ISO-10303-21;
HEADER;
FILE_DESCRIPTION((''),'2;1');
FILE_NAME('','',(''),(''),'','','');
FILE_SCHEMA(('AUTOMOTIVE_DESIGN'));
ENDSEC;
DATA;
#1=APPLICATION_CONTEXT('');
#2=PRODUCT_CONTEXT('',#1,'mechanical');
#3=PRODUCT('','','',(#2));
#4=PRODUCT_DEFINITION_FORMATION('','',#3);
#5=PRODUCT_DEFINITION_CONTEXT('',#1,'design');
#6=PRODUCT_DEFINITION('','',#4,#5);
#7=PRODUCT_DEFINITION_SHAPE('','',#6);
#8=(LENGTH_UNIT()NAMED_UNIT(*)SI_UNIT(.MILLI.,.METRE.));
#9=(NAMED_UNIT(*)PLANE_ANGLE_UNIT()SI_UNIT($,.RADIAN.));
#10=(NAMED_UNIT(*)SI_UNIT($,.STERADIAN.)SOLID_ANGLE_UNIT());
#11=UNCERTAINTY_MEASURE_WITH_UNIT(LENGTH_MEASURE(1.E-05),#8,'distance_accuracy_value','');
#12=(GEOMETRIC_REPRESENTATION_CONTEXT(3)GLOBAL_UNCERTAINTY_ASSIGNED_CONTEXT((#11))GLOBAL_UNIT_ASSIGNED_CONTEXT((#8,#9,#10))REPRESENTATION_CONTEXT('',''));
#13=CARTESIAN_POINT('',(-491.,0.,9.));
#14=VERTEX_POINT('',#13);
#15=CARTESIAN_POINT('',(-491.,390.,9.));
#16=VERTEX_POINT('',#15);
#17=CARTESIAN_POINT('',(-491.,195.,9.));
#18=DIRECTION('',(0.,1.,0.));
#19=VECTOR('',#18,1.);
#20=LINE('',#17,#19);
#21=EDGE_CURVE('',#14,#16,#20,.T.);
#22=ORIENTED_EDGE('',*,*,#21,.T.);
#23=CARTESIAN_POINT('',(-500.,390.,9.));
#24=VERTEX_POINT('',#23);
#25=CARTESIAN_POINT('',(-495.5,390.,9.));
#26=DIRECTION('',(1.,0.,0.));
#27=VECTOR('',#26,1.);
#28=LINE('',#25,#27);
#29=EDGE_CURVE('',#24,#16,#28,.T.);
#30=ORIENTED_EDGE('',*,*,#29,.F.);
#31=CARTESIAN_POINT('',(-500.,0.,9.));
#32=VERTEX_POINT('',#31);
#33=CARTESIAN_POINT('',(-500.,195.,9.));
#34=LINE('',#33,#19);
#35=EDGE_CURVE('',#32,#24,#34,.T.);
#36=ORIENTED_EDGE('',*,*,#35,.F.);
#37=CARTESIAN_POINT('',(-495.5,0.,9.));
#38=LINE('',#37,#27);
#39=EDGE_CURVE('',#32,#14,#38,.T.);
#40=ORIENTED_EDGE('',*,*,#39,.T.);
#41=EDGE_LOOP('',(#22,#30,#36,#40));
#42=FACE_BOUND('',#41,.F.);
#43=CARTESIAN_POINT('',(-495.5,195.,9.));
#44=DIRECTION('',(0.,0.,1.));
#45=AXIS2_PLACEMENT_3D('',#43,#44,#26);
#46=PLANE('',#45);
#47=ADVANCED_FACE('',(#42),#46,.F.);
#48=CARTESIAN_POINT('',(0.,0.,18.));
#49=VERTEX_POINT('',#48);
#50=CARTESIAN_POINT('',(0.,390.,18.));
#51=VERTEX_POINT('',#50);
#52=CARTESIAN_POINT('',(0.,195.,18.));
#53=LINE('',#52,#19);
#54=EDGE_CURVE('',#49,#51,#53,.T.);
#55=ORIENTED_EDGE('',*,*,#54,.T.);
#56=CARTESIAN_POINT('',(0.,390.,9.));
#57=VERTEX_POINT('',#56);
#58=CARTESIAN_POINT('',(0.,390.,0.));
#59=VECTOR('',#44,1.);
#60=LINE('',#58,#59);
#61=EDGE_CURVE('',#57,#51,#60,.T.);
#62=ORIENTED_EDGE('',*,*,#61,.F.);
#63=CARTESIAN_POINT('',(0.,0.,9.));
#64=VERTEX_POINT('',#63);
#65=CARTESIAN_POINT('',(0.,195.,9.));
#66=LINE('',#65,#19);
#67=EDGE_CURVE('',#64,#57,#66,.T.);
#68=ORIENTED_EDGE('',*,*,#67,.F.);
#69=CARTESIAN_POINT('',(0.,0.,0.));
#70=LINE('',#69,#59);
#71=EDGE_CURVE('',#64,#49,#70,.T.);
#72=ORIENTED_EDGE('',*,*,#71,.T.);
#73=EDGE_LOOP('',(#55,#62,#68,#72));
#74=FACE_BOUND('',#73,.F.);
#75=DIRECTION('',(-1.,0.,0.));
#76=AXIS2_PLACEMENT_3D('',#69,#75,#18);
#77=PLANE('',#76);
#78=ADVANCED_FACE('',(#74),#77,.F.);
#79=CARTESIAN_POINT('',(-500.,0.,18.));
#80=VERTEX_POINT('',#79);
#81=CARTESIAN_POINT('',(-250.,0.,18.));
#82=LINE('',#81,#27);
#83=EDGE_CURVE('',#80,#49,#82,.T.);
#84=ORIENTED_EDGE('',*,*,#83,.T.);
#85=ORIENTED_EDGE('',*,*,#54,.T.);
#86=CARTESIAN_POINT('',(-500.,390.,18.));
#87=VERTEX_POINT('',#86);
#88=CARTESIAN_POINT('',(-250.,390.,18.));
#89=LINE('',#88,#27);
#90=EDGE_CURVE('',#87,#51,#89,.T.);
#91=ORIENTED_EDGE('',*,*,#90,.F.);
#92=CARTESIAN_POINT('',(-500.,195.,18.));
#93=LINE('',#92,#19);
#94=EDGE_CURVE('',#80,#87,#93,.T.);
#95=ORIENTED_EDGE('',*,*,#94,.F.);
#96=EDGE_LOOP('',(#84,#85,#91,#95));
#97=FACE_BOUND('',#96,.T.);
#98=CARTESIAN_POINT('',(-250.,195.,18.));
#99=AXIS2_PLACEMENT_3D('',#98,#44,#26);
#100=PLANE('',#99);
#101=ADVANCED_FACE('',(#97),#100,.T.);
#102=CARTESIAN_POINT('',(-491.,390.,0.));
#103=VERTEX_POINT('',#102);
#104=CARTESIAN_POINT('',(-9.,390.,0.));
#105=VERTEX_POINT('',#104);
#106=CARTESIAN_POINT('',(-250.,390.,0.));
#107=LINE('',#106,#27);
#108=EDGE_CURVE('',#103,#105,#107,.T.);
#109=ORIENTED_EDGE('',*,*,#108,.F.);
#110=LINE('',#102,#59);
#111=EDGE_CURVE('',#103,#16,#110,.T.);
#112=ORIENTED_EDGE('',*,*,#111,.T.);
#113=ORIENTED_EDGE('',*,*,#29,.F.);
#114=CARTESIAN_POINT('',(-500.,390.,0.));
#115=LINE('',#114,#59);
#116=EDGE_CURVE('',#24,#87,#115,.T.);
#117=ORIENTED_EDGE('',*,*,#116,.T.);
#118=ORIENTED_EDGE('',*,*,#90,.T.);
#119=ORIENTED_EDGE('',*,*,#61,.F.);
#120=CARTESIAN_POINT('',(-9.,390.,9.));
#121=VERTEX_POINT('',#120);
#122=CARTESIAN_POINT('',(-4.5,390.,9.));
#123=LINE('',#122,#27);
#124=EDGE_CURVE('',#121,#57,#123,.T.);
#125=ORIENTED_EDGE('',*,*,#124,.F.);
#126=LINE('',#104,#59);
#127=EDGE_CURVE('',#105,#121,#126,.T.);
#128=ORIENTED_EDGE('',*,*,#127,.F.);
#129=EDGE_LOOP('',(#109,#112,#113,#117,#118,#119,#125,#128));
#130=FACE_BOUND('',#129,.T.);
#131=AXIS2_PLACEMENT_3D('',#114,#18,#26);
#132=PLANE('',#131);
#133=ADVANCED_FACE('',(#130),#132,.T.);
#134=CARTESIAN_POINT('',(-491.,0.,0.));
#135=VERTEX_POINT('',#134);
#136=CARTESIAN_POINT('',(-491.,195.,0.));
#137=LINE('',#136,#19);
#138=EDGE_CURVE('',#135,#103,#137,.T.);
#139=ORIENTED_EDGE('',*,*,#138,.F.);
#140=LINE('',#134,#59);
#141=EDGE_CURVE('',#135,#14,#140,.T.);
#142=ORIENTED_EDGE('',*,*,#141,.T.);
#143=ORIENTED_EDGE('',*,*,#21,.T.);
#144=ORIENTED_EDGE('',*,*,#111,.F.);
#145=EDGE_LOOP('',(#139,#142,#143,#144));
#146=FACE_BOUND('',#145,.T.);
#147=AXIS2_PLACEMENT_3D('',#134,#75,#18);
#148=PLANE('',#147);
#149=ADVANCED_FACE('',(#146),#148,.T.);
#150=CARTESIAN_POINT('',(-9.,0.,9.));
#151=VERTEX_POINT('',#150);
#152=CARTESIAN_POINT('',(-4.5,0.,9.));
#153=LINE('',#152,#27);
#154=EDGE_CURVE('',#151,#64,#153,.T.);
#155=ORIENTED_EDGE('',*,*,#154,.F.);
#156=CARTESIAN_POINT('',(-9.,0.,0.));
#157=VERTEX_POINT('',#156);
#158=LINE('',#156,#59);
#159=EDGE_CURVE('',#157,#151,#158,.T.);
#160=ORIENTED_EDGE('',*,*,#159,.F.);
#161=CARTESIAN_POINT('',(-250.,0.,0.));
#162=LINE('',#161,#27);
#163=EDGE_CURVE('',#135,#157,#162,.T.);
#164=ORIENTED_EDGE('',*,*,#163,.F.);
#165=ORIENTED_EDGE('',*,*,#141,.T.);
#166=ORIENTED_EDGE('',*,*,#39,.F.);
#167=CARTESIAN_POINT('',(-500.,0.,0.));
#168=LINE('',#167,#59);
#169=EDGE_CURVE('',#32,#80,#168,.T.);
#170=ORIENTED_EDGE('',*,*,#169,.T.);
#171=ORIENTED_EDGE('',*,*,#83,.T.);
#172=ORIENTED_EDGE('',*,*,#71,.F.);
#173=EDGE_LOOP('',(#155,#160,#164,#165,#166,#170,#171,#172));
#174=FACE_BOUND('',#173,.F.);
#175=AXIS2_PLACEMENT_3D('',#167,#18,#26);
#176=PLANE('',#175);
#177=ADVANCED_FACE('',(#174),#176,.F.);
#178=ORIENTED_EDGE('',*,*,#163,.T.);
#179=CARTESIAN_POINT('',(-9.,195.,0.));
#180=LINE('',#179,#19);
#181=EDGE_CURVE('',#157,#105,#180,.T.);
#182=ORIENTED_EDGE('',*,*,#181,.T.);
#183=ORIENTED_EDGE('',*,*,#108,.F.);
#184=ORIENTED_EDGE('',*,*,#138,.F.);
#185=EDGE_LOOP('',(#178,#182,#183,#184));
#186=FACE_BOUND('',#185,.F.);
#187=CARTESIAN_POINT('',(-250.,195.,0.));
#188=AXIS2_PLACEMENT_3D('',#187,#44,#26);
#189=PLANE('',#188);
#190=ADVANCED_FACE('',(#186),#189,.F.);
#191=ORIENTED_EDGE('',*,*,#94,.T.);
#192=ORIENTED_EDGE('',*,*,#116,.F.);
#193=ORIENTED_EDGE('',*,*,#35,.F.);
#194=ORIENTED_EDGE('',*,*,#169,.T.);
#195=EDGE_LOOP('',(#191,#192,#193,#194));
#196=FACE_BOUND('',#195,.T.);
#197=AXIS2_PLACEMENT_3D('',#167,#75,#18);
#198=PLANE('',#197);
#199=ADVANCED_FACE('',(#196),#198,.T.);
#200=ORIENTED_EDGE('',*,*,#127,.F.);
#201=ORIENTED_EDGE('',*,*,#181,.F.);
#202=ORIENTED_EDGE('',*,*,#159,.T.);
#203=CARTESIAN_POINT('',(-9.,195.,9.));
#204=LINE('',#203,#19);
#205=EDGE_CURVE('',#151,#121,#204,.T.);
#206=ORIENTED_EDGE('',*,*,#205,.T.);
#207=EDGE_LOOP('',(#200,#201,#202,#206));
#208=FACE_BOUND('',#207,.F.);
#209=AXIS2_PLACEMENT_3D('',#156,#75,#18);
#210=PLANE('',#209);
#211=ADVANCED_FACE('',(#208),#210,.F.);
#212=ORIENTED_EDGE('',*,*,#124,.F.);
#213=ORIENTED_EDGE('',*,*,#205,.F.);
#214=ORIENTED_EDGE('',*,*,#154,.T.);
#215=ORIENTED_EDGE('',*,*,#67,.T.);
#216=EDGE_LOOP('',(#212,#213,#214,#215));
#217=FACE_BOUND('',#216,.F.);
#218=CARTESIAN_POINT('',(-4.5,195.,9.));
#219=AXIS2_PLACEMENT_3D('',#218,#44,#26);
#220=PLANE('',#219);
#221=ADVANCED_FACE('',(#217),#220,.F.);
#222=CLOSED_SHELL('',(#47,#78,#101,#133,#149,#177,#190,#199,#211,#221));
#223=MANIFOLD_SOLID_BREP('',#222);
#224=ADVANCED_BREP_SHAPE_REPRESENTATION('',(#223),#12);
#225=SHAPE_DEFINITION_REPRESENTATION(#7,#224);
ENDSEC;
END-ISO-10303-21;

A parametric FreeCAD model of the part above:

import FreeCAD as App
import Part
import Sketcher
Q = App.Units.Quantity


def add_polygon(sketch, points):
    """Adds a closed chain of lines whose ends are joined by coincident constraints."""
    first, n = sketch.GeometryCount, len(points)
    for a, b in zip(points, points[1:] + points[:1]):
        sketch.addGeometry(Part.LineSegment(App.Vector(*a, 0), App.Vector(*b, 0)), False)
    for i in range(n):
        sketch.addConstraint(Sketcher.Constraint("Coincident", first + i, 2, first + (i + 1) % n, 1))

doc = App.newDocument("Part")
body = doc.addObject("PartDesign::Body", "Body")

sketch1 = doc.addObject("Sketcher::SketchObject", "Sketch")
body.addObject(sketch1)
sketch1.AttachmentSupport = (doc.XY_Plane, [""])
sketch1.MapMode = "FlatFace"
add_polygon(sketch1, [(-500, 390), (-500, 0), (0, 0), (0, 390)])
sketch1.addConstraint(Sketcher.Constraint("Vertical", 0))
sketch1.addConstraint(Sketcher.Constraint("Horizontal", 1))
sketch1.addConstraint(Sketcher.Constraint("Vertical", 2))
sketch1.addConstraint(Sketcher.Constraint("Horizontal", 3))
sketch1.addConstraint(Sketcher.Constraint("Coincident", 1, 2, -1, 1))
sketch1.addConstraint(Sketcher.Constraint("DistanceX", 1, 1, 1, 2, Q("500 mm")))
sketch1.addConstraint(Sketcher.Constraint("DistanceY", 0, 2, 0, 1, Q("390 mm")))
pad1 = doc.addObject("PartDesign::Pad", "Pad")
body.addObject(pad1)
pad1.Profile = sketch1
pad1.Length = 18

sketch2 = doc.addObject("Sketcher::SketchObject", "Sketch001")
body.addObject(sketch2)
sketch2.AttachmentSupport = (doc.XY_Plane, [""])
sketch2.MapMode = "FlatFace"
add_polygon(sketch2, [(-9, 390), (-9, 0), (0, 0), (0, 390)])
add_polygon(sketch2, [(-500, 390), (-500, 0), (-491, 0), (-491, 390)])
sketch2.addConstraint(Sketcher.Constraint("Vertical", 0))
sketch2.addConstraint(Sketcher.Constraint("Horizontal", 1))
sketch2.addConstraint(Sketcher.Constraint("Vertical", 2))
sketch2.addConstraint(Sketcher.Constraint("Horizontal", 3))
sketch2.addConstraint(Sketcher.Constraint("Vertical", 4))
sketch2.addConstraint(Sketcher.Constraint("Horizontal", 5))
sketch2.addConstraint(Sketcher.Constraint("Vertical", 6))
sketch2.addConstraint(Sketcher.Constraint("Horizontal", 7))
sketch2.addConstraint(Sketcher.Constraint("Coincident", 1, 2, -1, 1))
sketch2.addConstraint(Sketcher.Constraint("PointOnObject", 4, 2, -1))
sketch2.addConstraint(Sketcher.Constraint("Horizontal", 3, 2, 6, 2))
sketch2.addConstraint(Sketcher.Constraint("Equal", 3, 5))
sketch2.addConstraint(Sketcher.Constraint("DistanceX", 1, 1, 1, 2, Q("9 mm")))
sketch2.addConstraint(Sketcher.Constraint("DistanceY", 0, 2, 0, 1, Q("390 mm")))
sketch2.addConstraint(Sketcher.Constraint("DistanceX", 4, 2, -1, 1, Q("500 mm")))
pocket1 = doc.addObject("PartDesign::Pocket", "Pocket")
body.addObject(pocket1)
pocket1.Profile = sketch2
pocket1.Length = 9
pocket1.Reversed = True

doc.recompute()
